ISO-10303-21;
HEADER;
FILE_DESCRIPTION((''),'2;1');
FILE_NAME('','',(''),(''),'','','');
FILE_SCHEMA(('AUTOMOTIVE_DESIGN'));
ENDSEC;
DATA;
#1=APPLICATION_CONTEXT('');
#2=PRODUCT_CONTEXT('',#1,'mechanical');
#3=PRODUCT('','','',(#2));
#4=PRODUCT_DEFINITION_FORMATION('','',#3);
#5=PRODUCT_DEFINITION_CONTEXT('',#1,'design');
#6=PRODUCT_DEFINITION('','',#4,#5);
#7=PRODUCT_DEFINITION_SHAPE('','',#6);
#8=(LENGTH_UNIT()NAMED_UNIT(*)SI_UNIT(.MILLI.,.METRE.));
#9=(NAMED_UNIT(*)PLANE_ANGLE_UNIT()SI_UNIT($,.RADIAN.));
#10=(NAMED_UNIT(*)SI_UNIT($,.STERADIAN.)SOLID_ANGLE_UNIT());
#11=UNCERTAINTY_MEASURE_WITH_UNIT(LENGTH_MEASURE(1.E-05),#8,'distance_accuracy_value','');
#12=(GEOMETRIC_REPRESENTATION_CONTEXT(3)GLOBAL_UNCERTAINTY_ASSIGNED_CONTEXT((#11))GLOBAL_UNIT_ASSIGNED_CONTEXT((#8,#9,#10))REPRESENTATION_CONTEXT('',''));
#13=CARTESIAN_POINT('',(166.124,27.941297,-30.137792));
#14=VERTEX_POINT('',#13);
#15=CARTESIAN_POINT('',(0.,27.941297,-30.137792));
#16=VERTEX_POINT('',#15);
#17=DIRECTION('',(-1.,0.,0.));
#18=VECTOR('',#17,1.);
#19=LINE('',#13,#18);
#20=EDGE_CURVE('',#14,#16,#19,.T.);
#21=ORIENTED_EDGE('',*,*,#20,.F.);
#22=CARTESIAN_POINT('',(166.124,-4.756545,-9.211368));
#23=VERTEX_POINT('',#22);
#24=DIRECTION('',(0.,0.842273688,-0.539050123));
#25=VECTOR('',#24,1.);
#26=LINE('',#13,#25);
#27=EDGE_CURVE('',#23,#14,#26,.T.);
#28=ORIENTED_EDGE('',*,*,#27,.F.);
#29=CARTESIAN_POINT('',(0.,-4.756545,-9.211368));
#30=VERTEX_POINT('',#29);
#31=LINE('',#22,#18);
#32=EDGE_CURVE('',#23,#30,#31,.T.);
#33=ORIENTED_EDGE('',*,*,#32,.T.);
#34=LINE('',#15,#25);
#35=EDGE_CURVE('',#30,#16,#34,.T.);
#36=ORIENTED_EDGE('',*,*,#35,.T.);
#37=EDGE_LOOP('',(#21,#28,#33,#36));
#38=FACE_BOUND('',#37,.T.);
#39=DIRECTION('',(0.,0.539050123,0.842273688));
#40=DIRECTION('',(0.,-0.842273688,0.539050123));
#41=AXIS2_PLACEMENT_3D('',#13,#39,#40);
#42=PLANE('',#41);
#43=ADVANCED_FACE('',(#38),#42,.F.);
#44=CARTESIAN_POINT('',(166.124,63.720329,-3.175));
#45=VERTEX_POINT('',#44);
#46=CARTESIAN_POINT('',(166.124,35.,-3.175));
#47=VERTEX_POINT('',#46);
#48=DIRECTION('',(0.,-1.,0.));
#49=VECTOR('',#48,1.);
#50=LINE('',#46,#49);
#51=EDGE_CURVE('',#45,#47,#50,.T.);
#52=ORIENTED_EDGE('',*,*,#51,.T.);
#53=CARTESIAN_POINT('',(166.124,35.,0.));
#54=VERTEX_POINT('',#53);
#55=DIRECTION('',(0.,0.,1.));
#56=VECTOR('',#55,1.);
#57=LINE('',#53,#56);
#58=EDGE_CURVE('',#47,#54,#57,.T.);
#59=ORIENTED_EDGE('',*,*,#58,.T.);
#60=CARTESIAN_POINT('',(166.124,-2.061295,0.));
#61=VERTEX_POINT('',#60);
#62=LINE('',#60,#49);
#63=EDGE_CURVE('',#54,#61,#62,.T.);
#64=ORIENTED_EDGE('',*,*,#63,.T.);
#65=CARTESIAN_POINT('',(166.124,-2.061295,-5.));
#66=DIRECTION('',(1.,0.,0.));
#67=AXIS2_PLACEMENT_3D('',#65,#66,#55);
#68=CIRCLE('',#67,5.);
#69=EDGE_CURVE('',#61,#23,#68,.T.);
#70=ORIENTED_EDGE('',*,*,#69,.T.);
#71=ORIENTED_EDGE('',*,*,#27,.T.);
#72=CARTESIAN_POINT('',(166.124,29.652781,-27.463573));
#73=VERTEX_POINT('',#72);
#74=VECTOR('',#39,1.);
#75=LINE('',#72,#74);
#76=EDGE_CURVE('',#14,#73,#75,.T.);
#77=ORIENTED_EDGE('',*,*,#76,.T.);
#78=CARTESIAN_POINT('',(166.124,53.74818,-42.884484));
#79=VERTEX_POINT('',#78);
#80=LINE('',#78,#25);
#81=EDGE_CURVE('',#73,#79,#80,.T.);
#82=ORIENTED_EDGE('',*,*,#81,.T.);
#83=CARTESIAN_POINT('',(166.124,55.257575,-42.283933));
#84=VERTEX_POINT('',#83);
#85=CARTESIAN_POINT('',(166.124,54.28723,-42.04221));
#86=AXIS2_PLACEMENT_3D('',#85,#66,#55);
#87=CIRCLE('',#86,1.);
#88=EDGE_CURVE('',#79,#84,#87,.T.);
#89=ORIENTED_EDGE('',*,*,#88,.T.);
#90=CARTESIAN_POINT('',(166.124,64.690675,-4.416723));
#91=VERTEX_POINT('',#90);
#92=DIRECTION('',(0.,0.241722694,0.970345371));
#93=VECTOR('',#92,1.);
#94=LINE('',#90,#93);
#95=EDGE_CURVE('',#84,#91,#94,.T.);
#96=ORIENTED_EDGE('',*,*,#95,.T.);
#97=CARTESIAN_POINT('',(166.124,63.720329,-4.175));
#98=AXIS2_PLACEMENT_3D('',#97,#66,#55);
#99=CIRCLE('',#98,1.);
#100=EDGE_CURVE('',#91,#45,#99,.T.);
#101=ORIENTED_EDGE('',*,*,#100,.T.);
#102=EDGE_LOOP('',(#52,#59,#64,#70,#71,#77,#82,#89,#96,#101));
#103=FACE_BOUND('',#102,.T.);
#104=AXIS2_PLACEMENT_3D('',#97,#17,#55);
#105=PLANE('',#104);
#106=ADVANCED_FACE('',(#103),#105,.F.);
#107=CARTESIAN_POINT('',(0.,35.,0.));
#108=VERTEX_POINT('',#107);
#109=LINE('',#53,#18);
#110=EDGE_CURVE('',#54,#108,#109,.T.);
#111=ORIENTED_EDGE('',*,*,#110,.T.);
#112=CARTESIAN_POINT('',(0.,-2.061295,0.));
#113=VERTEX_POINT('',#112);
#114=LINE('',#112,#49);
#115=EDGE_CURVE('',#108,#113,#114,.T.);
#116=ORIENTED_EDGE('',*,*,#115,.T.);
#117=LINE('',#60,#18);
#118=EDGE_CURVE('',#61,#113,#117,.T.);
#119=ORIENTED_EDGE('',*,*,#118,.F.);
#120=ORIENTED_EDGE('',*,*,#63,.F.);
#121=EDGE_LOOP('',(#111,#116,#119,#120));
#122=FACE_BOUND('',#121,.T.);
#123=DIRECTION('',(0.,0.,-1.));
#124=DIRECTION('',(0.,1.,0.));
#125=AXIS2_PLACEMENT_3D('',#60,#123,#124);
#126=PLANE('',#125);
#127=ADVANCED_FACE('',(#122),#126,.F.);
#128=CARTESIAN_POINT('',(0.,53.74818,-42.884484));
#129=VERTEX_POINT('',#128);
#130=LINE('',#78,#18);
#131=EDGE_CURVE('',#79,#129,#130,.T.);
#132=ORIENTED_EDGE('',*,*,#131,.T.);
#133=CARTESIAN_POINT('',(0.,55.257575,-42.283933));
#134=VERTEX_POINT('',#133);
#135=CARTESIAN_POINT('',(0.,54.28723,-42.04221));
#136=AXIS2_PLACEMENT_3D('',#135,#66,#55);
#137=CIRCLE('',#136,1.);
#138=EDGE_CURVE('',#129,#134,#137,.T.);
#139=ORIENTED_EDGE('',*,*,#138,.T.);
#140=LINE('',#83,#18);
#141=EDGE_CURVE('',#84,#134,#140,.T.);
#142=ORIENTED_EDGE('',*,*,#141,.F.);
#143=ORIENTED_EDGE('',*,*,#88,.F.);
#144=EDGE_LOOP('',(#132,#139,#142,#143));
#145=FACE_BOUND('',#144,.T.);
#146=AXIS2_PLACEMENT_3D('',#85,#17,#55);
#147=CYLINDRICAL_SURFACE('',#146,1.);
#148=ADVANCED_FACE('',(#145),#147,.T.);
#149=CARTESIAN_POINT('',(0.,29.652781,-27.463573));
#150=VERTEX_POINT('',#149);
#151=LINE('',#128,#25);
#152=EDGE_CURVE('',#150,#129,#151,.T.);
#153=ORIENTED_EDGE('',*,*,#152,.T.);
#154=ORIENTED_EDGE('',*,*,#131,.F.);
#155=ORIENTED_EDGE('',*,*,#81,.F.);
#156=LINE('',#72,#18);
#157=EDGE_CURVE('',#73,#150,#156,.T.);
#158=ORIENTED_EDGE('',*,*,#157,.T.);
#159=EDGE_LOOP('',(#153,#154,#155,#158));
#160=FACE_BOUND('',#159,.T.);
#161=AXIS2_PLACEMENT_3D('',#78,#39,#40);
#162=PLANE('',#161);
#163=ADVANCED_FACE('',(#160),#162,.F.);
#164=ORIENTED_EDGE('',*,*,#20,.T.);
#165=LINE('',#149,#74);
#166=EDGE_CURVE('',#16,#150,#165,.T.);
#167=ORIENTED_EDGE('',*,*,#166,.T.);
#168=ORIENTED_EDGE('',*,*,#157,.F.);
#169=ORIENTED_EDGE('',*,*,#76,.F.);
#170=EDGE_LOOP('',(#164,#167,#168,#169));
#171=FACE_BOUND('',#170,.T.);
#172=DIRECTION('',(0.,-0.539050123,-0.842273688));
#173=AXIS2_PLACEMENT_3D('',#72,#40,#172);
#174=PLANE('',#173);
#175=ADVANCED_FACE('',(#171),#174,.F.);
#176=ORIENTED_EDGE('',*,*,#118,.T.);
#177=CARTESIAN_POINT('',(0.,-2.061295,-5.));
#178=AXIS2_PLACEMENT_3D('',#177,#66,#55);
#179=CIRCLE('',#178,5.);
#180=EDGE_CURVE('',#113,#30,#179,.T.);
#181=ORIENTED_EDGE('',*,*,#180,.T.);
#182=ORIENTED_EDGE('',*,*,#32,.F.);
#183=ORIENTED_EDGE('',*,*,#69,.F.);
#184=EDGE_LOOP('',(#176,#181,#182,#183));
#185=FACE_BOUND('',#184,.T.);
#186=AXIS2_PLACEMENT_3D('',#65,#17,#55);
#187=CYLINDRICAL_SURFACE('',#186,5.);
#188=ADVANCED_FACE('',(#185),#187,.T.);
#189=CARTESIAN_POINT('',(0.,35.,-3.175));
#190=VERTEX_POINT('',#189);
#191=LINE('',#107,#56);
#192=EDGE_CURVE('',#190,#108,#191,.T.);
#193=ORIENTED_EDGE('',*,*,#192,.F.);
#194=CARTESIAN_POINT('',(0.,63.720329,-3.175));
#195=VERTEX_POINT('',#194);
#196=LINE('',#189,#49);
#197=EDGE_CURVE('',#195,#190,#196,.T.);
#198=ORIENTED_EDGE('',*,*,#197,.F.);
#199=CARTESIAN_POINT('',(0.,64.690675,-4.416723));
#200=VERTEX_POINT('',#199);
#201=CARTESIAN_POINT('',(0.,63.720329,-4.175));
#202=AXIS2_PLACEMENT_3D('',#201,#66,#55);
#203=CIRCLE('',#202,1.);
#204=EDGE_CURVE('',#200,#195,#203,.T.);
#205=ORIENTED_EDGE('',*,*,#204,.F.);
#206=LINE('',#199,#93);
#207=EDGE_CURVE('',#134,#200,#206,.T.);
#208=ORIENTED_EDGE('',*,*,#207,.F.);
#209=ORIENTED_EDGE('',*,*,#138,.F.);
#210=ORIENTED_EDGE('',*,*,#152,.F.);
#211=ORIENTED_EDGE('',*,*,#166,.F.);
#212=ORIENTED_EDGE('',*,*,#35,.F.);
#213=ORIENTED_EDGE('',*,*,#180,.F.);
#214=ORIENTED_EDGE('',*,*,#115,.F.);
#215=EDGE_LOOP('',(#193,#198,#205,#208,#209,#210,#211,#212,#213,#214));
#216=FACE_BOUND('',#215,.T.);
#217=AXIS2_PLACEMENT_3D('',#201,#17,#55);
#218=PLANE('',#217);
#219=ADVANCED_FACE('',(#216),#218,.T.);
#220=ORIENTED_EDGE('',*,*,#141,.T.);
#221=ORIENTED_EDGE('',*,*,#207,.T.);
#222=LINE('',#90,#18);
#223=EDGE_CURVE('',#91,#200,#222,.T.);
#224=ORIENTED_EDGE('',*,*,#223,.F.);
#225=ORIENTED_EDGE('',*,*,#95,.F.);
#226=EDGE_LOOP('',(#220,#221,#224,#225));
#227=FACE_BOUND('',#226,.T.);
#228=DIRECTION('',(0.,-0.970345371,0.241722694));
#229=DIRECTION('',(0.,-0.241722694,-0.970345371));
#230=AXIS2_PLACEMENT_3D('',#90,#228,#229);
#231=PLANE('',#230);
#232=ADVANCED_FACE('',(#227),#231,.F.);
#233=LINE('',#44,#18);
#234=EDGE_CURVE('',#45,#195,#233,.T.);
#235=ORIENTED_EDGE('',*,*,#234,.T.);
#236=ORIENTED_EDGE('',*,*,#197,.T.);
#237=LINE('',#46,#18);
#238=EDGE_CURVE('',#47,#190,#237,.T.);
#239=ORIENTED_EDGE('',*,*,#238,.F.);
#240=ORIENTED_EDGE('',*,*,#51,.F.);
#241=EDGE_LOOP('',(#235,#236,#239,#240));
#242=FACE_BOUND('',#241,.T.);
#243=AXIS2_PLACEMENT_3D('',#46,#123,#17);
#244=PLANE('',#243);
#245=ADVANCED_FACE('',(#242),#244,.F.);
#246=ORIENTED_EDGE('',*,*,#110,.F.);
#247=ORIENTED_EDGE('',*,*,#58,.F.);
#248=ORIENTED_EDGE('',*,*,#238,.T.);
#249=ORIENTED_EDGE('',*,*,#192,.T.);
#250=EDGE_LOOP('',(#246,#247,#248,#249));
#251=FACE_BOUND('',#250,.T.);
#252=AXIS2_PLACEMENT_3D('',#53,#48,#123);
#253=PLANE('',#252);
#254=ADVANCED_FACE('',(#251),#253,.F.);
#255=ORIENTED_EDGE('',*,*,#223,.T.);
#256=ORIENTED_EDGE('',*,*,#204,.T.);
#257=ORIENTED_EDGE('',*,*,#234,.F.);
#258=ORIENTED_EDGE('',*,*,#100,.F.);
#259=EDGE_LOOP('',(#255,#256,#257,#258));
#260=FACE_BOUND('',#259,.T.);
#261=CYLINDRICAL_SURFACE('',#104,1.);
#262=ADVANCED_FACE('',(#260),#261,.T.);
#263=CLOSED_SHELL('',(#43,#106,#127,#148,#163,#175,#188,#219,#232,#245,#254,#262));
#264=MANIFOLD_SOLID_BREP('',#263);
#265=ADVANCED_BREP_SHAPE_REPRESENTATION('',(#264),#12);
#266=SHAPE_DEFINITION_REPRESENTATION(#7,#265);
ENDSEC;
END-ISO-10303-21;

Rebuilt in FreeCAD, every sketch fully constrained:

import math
import FreeCAD as App
import Part
import Sketcher

doc = App.newDocument("Part")
params = doc.addObject("Spreadsheet::Sheet", "Params")
for row, (alias, value) in enumerate([
    ("sketch1_radius", "5 mm"),
    ("sketch1_radius2", "1 mm"),
    ("pad1_length", "166.124 mm"),
], start=1):
    params.set(f"A{row}", alias)
    params.set(f"B{row}", "=" + value)
    params.setAlias(f"B{row}", alias)

body = doc.addObject("PartDesign::Body", "Body")

# Sketch on YZ plane
sketch1 = body.newObject("Sketcher::SketchObject", "Sketch")
sketch1.AttachmentSupport = (doc.getObject("YZ_Plane"), [""])
sketch1.MapMode = "FlatFace"
sketch1.addGeometry(Part.LineSegment(App.Vector(35, -3.2, 0), App.Vector(35, 0, 0)), False)
sketch1.addGeometry(Part.LineSegment(App.Vector(35, 0, 0), App.Vector(-2.1, 0, 0)), False)
sketch1.addGeometry(Part.ArcOfCircle(Part.Circle(App.Vector(-2.1, -5, 0), App.Vector(0, 0, 1), 5), math.radians(90), math.radians(237)), False)
sketch1.addGeometry(Part.LineSegment(App.Vector(-4.8, -9.2, 0), App.Vector(27.9, -30.1, 0)), False)
sketch1.addGeometry(Part.LineSegment(App.Vector(27.9, -30.1, 0), App.Vector(29.7, -27.5, 0)), False)
sketch1.addGeometry(Part.LineSegment(App.Vector(29.7, -27.5, 0), App.Vector(53.7, -42.9, 0)), False)
sketch1.addGeometry(Part.ArcOfCircle(Part.Circle(App.Vector(54.3, -42, 0), App.Vector(0, 0, 1), 1), math.radians(-123), math.radians(-14)), False)
sketch1.addGeometry(Part.LineSegment(App.Vector(55.3, -42.3, 0), App.Vector(64.7, -4.4, 0)), False)
sketch1.addGeometry(Part.ArcOfCircle(Part.Circle(App.Vector(63.7, -4.2, 0), App.Vector(0, 0, 1), 1), math.radians(-14), math.radians(90)), False)
sketch1.addGeometry(Part.LineSegment(App.Vector(63.7, -3.2, 0), App.Vector(35, -3.2, 0)), False)
sketch1.addConstraint(Sketcher.Constraint("Coincident", 0, 2, 1, 1))
sketch1.addConstraint(Sketcher.Constraint("Tangent", 1, 2, 2, 1))
sketch1.addConstraint(Sketcher.Constraint("Tangent", 2, 2, 3, 1))
sketch1.addConstraint(Sketcher.Constraint("Coincident", 3, 2, 4, 1))
sketch1.addConstraint(Sketcher.Constraint("Coincident", 4, 2, 5, 1))
sketch1.addConstraint(Sketcher.Constraint("Tangent", 5, 2, 6, 1))
sketch1.addConstraint(Sketcher.Constraint("Tangent", 6, 2, 7, 1))
sketch1.addConstraint(Sketcher.Constraint("Tangent", 7, 2, 8, 1))
sketch1.addConstraint(Sketcher.Constraint("Tangent", 8, 2, 9, 1))
sketch1.addConstraint(Sketcher.Constraint("Coincident", 9, 2, 0, 1))
sketch1.addConstraint(Sketcher.Constraint("Vertical", 0))
sketch1.addConstraint(Sketcher.Constraint("Horizontal", 1))
sketch1.addConstraint(Sketcher.Constraint("Horizontal", 9))
sketch1.addConstraint(Sketcher.Constraint("Equal", 6, 8))
sketch1.addConstraint(Sketcher.Constraint("PointOnObject", 0, 2, -1))
sketch1.addConstraint(Sketcher.Constraint("Perpendicular", 3, 4))
sketch1.addConstraint(Sketcher.Constraint("Perpendicular", 4, 5))
sketch1.addConstraint(Sketcher.Constraint("Radius", 2, 5.0))
sketch1.addConstraint(Sketcher.Constraint("Radius", 6, 1.0))
sketch1.addConstraint(Sketcher.Constraint("DistanceX", -1, 1, 0, 2, 35.0))
sketch1.addConstraint(Sketcher.Constraint("DistanceY", 0, 1, 0, 2, 3.175))
sketch1.addConstraint(Sketcher.Constraint("Distance", 4, 3.175))
sketch1.addConstraint(Sketcher.Constraint("DistanceX", 9, 2, 9, 1, 28.720329))
sketch1.addConstraint(Sketcher.Constraint("DistanceX", 6, 3, 8, 3, 9.433099))
sketch1.addConstraint(Sketcher.Constraint("DistanceX", 4, 2, 5, 2, 24.095398))
sketch1.addConstraint(Sketcher.Constraint("DistanceX", 1, 2, 1, 1, 37.061295))
sketch1.addConstraint(Sketcher.Constraint("DistanceY", 6, 3, -1, 1, 42.04221))
sketch1.setExpression("Constraints[17]", "Params.sketch1_radius")
sketch1.setExpression("Constraints[18]", "Params.sketch1_radius2")
pad1 = body.newObject("PartDesign::Pad", "Pad")
pad1.Profile = sketch1
pad1.setExpression("Length", "Params.pad1_length")

doc.recompute()
